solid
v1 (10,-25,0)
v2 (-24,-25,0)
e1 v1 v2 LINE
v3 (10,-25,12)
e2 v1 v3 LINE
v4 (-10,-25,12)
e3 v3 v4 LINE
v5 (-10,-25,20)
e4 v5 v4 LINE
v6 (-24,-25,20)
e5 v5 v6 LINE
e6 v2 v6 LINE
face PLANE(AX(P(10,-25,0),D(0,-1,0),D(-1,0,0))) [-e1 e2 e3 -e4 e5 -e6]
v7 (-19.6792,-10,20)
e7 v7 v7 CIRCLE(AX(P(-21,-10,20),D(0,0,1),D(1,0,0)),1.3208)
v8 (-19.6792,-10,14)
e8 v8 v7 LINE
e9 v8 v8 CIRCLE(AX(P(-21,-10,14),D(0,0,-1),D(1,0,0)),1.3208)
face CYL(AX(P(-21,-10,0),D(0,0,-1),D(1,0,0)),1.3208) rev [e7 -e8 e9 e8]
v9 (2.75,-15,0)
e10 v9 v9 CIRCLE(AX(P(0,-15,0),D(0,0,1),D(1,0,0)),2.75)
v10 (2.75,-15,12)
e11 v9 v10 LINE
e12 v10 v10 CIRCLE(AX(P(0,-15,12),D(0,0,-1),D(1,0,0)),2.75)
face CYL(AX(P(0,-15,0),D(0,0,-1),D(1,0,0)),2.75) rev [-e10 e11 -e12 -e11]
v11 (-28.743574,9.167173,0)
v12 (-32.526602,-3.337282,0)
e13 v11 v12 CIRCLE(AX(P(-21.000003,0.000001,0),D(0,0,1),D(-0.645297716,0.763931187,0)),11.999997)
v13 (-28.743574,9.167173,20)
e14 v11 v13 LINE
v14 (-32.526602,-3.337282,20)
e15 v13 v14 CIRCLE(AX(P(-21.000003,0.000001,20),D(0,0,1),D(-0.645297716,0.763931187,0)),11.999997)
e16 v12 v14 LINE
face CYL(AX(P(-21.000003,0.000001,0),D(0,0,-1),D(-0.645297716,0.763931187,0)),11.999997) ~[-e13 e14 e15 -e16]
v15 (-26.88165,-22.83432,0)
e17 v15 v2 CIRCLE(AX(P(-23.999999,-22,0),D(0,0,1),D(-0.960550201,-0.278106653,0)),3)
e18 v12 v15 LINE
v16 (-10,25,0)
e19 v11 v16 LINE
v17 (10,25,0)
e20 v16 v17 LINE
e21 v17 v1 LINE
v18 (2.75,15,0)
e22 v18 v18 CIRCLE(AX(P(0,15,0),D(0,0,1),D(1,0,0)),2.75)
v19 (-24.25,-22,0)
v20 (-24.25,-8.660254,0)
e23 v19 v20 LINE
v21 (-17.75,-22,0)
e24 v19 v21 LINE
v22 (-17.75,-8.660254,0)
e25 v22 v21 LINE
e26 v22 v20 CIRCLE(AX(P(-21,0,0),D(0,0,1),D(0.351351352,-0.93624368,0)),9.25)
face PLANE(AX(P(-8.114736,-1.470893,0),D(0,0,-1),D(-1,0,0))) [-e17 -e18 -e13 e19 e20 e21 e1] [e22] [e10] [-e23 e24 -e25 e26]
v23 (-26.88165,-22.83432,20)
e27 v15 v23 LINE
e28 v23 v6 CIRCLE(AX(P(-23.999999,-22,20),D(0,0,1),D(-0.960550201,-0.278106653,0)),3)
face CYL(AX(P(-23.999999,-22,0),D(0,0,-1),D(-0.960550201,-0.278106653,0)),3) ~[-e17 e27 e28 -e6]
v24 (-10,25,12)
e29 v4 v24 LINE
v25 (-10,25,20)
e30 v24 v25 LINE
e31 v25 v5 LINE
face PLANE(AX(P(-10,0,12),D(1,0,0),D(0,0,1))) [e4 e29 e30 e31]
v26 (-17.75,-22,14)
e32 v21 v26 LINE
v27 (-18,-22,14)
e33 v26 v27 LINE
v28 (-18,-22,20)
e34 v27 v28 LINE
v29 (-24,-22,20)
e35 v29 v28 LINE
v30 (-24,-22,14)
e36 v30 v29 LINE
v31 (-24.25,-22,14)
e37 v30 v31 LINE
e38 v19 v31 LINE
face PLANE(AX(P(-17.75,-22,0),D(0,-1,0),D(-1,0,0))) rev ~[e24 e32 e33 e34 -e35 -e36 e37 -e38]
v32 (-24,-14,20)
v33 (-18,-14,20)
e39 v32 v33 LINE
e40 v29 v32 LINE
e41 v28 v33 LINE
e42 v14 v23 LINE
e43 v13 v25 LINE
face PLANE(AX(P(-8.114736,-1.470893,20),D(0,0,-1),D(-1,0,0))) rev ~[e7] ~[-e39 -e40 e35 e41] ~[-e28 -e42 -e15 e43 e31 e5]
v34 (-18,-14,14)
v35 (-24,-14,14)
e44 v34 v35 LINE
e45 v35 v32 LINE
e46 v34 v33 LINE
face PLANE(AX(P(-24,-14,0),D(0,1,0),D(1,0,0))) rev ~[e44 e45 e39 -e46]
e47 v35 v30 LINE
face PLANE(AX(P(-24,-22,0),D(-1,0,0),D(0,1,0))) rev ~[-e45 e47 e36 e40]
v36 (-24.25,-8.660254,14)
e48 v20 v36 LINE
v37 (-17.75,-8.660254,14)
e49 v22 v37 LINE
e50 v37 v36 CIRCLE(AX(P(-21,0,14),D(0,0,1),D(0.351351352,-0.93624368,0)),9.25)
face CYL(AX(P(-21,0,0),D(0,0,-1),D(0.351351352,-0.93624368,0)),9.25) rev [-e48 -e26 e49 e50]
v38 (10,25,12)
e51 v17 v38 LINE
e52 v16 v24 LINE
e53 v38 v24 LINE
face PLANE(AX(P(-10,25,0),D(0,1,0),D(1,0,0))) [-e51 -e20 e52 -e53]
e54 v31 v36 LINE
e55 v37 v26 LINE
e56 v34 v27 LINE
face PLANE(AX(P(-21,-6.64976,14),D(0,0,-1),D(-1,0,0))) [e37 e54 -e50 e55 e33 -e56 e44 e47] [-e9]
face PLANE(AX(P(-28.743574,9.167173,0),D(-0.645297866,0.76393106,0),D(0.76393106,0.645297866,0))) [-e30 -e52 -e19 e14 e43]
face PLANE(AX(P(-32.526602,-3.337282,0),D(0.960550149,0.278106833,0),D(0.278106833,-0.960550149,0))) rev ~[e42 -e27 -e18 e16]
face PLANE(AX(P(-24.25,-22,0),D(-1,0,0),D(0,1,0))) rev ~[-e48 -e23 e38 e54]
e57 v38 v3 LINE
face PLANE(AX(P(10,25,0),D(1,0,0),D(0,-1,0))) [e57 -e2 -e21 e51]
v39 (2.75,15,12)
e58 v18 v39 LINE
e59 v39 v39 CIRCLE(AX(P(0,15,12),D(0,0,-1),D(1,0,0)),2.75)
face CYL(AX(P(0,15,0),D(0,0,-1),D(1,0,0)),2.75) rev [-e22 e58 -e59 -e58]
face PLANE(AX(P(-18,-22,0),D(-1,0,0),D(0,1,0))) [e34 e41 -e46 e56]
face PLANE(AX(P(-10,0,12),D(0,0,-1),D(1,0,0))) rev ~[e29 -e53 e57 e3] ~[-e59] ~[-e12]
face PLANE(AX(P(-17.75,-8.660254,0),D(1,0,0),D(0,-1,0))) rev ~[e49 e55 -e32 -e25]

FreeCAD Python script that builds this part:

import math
import FreeCAD as App
import Part
import Sketcher

doc = App.newDocument("Part")
body = doc.addObject("PartDesign::Body", "Body")

# Sketch on XY plane
sketch1 = body.newObject("Sketcher::SketchObject", "Sketch")
sketch1.AttachmentSupport = (doc.getObject("XY_Plane"), [""])
sketch1.MapMode = "FlatFace"
sketch1.addGeometry(Part.LineSegment(App.Vector(-10, 25, 0), App.Vector(-28.7, 9.2, 0)), False)
sketch1.addGeometry(Part.ArcOfCircle(Part.Circle(App.Vector(-21, 0, 0), App.Vector(0, 0, 1), 12), math.radians(130), math.radians(196)), False)
sketch1.addGeometry(Part.LineSegment(App.Vector(-32.5, -3.3, 0), App.Vector(-26.9, -22.8, 0)), False)
sketch1.addGeometry(Part.ArcOfCircle(Part.Circle(App.Vector(-24, -22, 0), App.Vector(0, 0, 1), 3), math.radians(-164), math.radians(-90)), False)
sketch1.addGeometry(Part.LineSegment(App.Vector(-24, -25, 0), App.Vector(10, -25, 0)), False)
sketch1.addGeometry(Part.LineSegment(App.Vector(10, -25, 0), App.Vector(10, 25, 0)), False)
sketch1.addGeometry(Part.LineSegment(App.Vector(10, 25, 0), App.Vector(-10, 25, 0)), False)
sketch1.addGeometry(Part.Circle(App.Vector(0, -15, 0), App.Vector(0, 0, 1), 2.8), False)
sketch1.addGeometry(Part.LineSegment(App.Vector(-24, -22, 0), App.Vector(-24, -14, 0)), False)
sketch1.addGeometry(Part.LineSegment(App.Vector(-24, -14, 0), App.Vector(-18, -14, 0)), False)
sketch1.addGeometry(Part.LineSegment(App.Vector(-18, -14, 0), App.Vector(-18, -22, 0)), False)
sketch1.addGeometry(Part.LineSegment(App.Vector(-18, -22, 0), App.Vector(-24, -22, 0)), False)
sketch1.addGeometry(Part.Circle(App.Vector(-21, -10, 0), App.Vector(0, 0, 1), 1.3), False)
sketch1.addGeometry(Part.Circle(App.Vector(0, 15, 0), App.Vector(0, 0, 1), 2.8), False)
sketch1.addConstraint(Sketcher.Constraint("Tangent", 0, 2, 1, 1))
sketch1.addConstraint(Sketcher.Constraint("Tangent", 1, 2, 2, 1))
sketch1.addConstraint(Sketcher.Constraint("Tangent", 2, 2, 3, 1))
sketch1.addConstraint(Sketcher.Constraint("Tangent", 3, 2, 4, 1))
sketch1.addConstraint(Sketcher.Constraint("Coincident", 4, 2, 5, 1))
sketch1.addConstraint(Sketcher.Constraint("Coincident", 5, 2, 6, 1))
sketch1.addConstraint(Sketcher.Constraint("Coincident", 6, 2, 0, 1))
sketch1.addConstraint(Sketcher.Constraint("Coincident", 8, 2, 9, 1))
sketch1.addConstraint(Sketcher.Constraint("Coincident", 9, 2, 10, 1))
sketch1.addConstraint(Sketcher.Constraint("Coincident", 10, 2, 11, 1))
sketch1.addConstraint(Sketcher.Constraint("Coincident", 11, 2, 8, 1))
sketch1.addConstraint(Sketcher.Constraint("Horizontal", 4))
sketch1.addConstraint(Sketcher.Constraint("Vertical", 5))
sketch1.addConstraint(Sketcher.Constraint("Horizontal", 6))
sketch1.addConstraint(Sketcher.Constraint("Vertical", 8))
sketch1.addConstraint(Sketcher.Constraint("Horizontal", 9))
sketch1.addConstraint(Sketcher.Constraint("Vertical", 10))
sketch1.addConstraint(Sketcher.Constraint("Horizontal", 11))
sketch1.addConstraint(Sketcher.Constraint("Coincident", 11, 2, 3, 3))
sketch1.addConstraint(Sketcher.Constraint("Equal", 7, 13))
sketch1.addConstraint(Sketcher.Constraint("Symmetric", 7, 3, 13, 3, -1, 1))
sketch1.addConstraint(Sketcher.Constraint("Symmetric", 4, 2, 6, 2, -1, 1))
sketch1.addConstraint(Sketcher.Constraint("PointOnObject", 1, 3, -1))
sketch1.addConstraint(Sketcher.Constraint("PointOnObject", 7, 3, -2))
sketch1.addConstraint(Sketcher.Constraint("Radius", 3, 3.0))
sketch1.addConstraint(Sketcher.Constraint("Diameter", 7, 5.5))
sketch1.addConstraint(Sketcher.Constraint("DistanceX", 4, 1, 4, 2, 34.0))
sketch1.addConstraint(Sketcher.Constraint("DistanceX", 6, 2, 6, 1, 20.0))
sketch1.addConstraint(Sketcher.Constraint("DistanceX", 9, 1, 9, 2, 6.0))
sketch1.addConstraint(Sketcher.Constraint("DistanceY", 5, 1, 5, 2, 50.0))
sketch1.addConstraint(Sketcher.Constraint("DistanceY", 8, 1, 8, 2, 8.0))
sketch1.addConstraint(Sketcher.Constraint("DistanceY", 7, 3, -1, 1, 15.0))
sketch1.addConstraint(Sketcher.Constraint("DistanceX", 12, 3, -1, 1, 21.0))
sketch1.addConstraint(Sketcher.Constraint("DistanceY", 12, 3, -1, 1, 10.0))
sketch1.addConstraint(Sketcher.Constraint("Diameter", 12, 2.6416))
sketch1.addConstraint(Sketcher.Constraint("Radius", 1, 11.999997))
sketch1.addConstraint(Sketcher.Constraint("DistanceX", 1, 2, -1, 1, 32.526602))
pad1 = body.newObject("PartDesign::Pad", "Pad")
pad1.Profile = sketch1
pad1.Length = 20

# Sketch on XY plane
sketch2 = body.newObject("Sketcher::SketchObject", "Sketch001")
sketch2.AttachmentSupport = (doc.getObject("XY_Plane"), [""])
sketch2.MapMode = "FlatFace"
sketch2.addGeometry(Part.LineSegment(App.Vector(-18, -22, 0), App.Vector(-18, -9, 0)), False)
sketch2.addGeometry(Part.ArcOfCircle(Part.Circle(App.Vector(-21, 0, 0), App.Vector(0, 0, 1), 9), math.radians(-69), math.radians(249)), False)
sketch2.addGeometry(Part.LineSegment(App.Vector(-24, -9, 0), App.Vector(-24, -22, 0)), False)
sketch2.addGeometry(Part.LineSegment(App.Vector(-24, -22, 0), App.Vector(-18, -22, 0)), False)
sketch2.addConstraint(Sketcher.Constraint("Coincident", 0, 2, 1, 1))
sketch2.addConstraint(Sketcher.Constraint("Coincident", 1, 2, 2, 1))
sketch2.addConstraint(Sketcher.Constraint("Coincident", 2, 2, 3, 1))
sketch2.addConstraint(Sketcher.Constraint("Coincident", 3, 2, 0, 1))
sketch2.addConstraint(Sketcher.Constraint("Vertical", 0))
sketch2.addConstraint(Sketcher.Constraint("Vertical", 2))
sketch2.addConstraint(Sketcher.Constraint("Horizontal", 3))
sketch2.addConstraint(Sketcher.Constraint("PointOnObject", 1, 3, -1))
sketch2.addConstraint(Sketcher.Constraint("Horizontal", 0, 2, 1, 2))
sketch2.addConstraint(Sketcher.Constraint("Radius", 1, 9.25))
sketch2.addConstraint(Sketcher.Constraint("DistanceX", 3, 1, 3, 2, 6.5))
sketch2.addConstraint(Sketcher.Constraint("DistanceX", 1, 3, -1, 1, 21.0))
sketch2.addConstraint(Sketcher.Constraint("DistanceY", 2, 2, -1, 1, 22.0))
pocket1 = body.newObject("PartDesign::Pocket", "Pocket")
pocket1.Profile = sketch2
pocket1.Length = 14
pocket1.Reversed = True

# Sketch on XZ plane
sketch3 = body.newObject("Sketcher::SketchObject", "Sketch002")
sketch3.AttachmentSupport = (doc.getObject("XZ_Plane"), [""])
sketch3.MapMode = "FlatFace"
sketch3.addGeometry(Part.LineSegment(App.Vector(-10, 32, 0), App.Vector(-10, 12, 0)), False)
sketch3.addGeometry(Part.LineSegment(App.Vector(-10, 12, 0), App.Vector(10, 12, 0)), False)
sketch3.addGeometry(Part.LineSegment(App.Vector(10, 12, 0), App.Vector(10, 32, 0)), False)
sketch3.addGeometry(Part.LineSegment(App.Vector(10, 32, 0), App.Vector(-10, 32, 0)), False)
sketch3.addConstraint(Sketcher.Constraint("Coincident", 0, 2, 1, 1))
sketch3.addConstraint(Sketcher.Constraint("Coincident", 1, 2, 2, 1))
sketch3.addConstraint(Sketcher.Constraint("Coincident", 2, 2, 3, 1))
sketch3.addConstraint(Sketcher.Constraint("Coincident", 3, 2, 0, 1))
sketch3.addConstraint(Sketcher.Constraint("Vertical", 0))
sketch3.addConstraint(Sketcher.Constraint("Horizontal", 1))
sketch3.addConstraint(Sketcher.Constraint("Vertical", 2))
sketch3.addConstraint(Sketcher.Constraint("Horizontal", 3))
sketch3.addConstraint(Sketcher.Constraint("Equal", 3, 0))
sketch3.addConstraint(Sketcher.Constraint("DistanceX", 1, 1, 1, 2, 20.0))
sketch3.addConstraint(Sketcher.Constraint("DistanceX", 0, 2, -1, 1, 10.0))
sketch3.addConstraint(Sketcher.Constraint("DistanceY", -1, 1, 0, 2, 12.0))
pocket2 = body.newObject("PartDesign::Pocket", "Pocket001")
pocket2.Profile = sketch3
pocket2.Type = "ThroughAll"
pocket2.Midplane = True

doc.recompute()
